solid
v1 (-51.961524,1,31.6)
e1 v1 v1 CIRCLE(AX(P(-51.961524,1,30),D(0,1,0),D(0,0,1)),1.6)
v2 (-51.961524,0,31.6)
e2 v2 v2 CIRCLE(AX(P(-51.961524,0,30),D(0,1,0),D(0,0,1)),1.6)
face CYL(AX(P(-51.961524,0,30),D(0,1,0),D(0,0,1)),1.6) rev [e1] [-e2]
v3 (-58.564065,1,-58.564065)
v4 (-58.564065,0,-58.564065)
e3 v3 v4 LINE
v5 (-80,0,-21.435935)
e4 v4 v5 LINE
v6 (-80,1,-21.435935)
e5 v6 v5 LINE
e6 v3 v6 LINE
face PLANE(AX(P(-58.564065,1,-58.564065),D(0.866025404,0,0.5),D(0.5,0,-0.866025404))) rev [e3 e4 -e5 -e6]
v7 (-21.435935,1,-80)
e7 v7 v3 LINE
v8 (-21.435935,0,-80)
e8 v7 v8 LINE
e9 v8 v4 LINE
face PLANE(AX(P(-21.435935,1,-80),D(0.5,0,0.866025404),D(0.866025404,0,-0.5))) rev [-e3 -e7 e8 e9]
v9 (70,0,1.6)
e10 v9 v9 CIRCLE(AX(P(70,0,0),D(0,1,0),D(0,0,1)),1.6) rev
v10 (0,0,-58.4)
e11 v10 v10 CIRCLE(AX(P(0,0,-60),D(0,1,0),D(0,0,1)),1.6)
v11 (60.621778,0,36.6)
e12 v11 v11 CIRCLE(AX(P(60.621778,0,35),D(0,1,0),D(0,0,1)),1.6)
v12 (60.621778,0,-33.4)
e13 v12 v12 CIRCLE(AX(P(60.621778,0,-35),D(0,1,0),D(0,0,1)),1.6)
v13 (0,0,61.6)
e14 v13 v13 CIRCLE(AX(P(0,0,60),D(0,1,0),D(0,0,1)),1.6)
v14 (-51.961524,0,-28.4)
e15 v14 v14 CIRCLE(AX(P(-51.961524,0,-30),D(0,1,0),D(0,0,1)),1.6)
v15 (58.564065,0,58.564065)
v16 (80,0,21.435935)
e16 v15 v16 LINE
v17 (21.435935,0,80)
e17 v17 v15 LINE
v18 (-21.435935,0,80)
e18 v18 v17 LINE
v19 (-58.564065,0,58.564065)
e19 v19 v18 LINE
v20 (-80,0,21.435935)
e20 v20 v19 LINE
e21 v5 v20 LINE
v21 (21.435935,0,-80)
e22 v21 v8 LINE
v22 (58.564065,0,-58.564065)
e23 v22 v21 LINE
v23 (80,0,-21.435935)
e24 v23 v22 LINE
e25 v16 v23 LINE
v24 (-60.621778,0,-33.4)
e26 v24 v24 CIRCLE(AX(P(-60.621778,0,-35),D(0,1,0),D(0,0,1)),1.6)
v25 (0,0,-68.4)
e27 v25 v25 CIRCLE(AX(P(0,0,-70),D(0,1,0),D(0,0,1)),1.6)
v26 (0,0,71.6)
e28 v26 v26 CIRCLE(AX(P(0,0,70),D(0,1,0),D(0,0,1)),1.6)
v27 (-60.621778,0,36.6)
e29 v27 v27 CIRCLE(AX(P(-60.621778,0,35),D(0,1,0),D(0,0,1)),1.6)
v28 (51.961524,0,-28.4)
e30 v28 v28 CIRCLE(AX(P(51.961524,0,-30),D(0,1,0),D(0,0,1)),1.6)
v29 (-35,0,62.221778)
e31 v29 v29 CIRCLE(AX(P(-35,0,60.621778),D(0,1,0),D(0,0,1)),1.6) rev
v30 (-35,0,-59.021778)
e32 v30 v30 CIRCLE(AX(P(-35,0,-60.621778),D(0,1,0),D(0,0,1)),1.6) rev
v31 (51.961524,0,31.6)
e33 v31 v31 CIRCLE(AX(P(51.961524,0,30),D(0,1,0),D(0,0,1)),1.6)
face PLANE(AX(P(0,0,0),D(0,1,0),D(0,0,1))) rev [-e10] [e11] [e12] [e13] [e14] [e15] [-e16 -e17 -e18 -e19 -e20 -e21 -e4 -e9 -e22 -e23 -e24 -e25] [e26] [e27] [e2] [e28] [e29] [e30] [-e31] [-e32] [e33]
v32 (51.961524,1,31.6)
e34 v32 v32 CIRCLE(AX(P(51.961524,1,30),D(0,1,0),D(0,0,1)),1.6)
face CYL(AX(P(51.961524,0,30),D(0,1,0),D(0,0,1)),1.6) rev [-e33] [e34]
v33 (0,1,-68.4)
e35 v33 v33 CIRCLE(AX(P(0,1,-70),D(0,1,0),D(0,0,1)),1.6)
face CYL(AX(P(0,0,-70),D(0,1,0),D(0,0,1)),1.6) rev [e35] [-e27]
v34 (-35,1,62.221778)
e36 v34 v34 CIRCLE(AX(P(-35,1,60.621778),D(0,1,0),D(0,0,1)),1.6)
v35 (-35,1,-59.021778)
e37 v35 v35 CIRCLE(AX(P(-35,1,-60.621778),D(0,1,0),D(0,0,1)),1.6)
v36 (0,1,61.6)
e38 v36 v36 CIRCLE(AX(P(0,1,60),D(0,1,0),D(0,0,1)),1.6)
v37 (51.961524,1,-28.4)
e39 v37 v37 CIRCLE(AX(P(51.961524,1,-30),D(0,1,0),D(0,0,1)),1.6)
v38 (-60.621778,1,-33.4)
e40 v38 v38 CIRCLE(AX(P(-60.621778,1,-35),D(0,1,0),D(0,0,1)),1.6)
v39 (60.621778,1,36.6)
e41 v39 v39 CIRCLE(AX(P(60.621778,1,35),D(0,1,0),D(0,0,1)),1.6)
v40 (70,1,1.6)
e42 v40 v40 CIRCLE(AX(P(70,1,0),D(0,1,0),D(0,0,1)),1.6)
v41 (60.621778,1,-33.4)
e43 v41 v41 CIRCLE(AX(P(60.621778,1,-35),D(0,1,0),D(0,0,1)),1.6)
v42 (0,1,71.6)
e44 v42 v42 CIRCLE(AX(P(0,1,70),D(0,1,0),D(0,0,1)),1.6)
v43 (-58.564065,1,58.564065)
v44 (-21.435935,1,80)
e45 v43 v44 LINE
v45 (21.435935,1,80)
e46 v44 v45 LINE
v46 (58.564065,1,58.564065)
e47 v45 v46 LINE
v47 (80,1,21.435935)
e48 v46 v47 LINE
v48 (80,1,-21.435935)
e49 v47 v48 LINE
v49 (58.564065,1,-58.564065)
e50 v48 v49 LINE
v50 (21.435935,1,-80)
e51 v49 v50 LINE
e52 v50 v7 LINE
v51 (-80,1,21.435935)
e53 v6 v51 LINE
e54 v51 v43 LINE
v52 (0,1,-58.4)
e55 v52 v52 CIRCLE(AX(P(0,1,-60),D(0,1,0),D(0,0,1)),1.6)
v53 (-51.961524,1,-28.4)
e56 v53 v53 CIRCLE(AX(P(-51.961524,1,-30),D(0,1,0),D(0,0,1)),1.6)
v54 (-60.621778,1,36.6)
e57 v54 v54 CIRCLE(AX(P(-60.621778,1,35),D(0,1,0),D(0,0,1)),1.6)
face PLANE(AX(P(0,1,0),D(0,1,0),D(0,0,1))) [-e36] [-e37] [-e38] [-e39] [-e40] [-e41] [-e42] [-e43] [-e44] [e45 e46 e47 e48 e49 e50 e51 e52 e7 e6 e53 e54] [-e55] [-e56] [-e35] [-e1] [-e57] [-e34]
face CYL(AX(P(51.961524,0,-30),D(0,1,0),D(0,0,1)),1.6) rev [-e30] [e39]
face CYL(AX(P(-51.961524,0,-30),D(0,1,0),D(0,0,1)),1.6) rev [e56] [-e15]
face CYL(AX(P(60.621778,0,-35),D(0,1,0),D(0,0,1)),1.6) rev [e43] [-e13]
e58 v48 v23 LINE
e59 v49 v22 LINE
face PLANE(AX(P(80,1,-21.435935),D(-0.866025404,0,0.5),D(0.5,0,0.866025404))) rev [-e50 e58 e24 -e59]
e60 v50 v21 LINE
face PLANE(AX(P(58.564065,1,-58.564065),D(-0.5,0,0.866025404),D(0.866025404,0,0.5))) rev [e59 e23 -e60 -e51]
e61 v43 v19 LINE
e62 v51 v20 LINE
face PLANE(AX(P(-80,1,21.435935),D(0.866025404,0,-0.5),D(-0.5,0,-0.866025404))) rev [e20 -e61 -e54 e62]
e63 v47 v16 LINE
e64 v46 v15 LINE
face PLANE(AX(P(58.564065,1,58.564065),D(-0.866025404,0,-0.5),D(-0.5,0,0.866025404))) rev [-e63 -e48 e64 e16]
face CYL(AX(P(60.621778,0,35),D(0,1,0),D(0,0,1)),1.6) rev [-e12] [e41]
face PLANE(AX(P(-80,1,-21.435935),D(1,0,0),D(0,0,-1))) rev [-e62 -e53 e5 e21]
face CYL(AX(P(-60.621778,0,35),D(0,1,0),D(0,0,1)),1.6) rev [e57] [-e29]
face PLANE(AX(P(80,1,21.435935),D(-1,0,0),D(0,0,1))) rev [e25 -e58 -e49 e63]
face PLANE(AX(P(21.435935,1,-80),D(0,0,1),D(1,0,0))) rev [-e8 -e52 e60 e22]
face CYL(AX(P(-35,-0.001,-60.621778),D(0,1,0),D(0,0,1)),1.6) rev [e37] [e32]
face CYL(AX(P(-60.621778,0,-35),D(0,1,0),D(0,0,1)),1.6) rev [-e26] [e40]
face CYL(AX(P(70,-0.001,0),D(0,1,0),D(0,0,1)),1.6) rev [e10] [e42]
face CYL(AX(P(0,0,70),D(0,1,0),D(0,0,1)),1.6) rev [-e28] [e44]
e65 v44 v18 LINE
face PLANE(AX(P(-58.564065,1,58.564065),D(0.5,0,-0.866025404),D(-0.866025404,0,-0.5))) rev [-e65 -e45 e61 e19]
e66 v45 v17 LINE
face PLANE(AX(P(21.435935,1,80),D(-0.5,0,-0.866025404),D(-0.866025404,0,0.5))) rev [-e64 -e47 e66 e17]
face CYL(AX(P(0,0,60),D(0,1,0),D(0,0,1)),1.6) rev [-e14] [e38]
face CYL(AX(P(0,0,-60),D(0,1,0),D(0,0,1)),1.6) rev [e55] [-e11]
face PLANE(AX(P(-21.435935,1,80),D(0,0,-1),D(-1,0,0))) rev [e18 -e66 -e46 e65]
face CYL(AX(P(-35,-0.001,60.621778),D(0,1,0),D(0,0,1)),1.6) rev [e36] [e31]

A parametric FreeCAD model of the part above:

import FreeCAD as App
import Part
import Sketcher
from FreeCAD import Vector
Q = App.Units.Quantity


def add_polygon(sketch, points):
    """Adds a closed chain of lines whose ends are joined by coincident constraints."""
    first, n = sketch.GeometryCount, len(points)
    for a, b in zip(points, points[1:] + points[:1]):
        sketch.addGeometry(Part.LineSegment(App.Vector(*a, 0), App.Vector(*b, 0)), False)
    for i in range(n):
        sketch.addConstraint(Sketcher.Constraint("Coincident", first + i, 2, first + (i + 1) % n, 1))

doc = App.newDocument("Part")
body = doc.addObject("PartDesign::Body", "Body")

# Sketch on XZ plane
sketch1 = doc.addObject("Sketcher::SketchObject", "Sketch")
body.addObject(sketch1)
sketch1.AttachmentSupport = (doc.XZ_Plane, [""])
sketch1.MapMode = "FlatFace"
add_polygon(sketch1, [(-80, 21), (-59, 59), (-21, 80), (21, 80), (59, 59), (80, 21), (80, -21), (59, -59), (21, -80), (-21, -80), (-59, -59), (-80, -21)])  # lines 0-11
sketch1.addConstraint([
    Sketcher.Constraint("Horizontal", 2),
    Sketcher.Constraint("Vertical", 5),
    Sketcher.Constraint("Horizontal", 8),
    Sketcher.Constraint("Vertical", 11),
    Sketcher.Constraint("Symmetric", 0, 2, 6, 2, -1, 1),
    Sketcher.Constraint("Symmetric", 1, 2, 7, 2, -1, 1),
    Sketcher.Constraint("Symmetric", 3, 2, 9, 2, -1, 1),
    Sketcher.Constraint("Symmetric", 4, 2, 10, 2, -1, 1),
    Sketcher.Constraint("Symmetric", 0, 2, 3, 2, -2),
    Sketcher.Constraint("Perpendicular", 0, 3),
    Sketcher.Constraint("Perpendicular", 1, 4),
    Sketcher.Constraint("Perpendicular", 3, 6),
    Sketcher.Constraint("Perpendicular", 6, 9),
    Sketcher.Constraint("Horizontal", 5, 2, 10, 2),
    Sketcher.Constraint("Equal", 8, 5),
    Sketcher.Constraint("Equal", 0, 1),
    Sketcher.Constraint("Angle", 0, Q("60 deg")),
    Sketcher.Constraint("DistanceY", -1, 1, 1, 2, Q("80 mm")),
    Sketcher.Constraint("DistanceX", 0, 2, 2, 2, Q("80 mm")),
])
pad1 = doc.addObject("PartDesign::Pad", "Pad")
body.addObject(pad1)
pad1.Profile = sketch1
pad1.Length = 1
pad1.Reversed = True

# Sketch on XZ plane
sketch2 = doc.addObject("Sketcher::SketchObject", "Sketch001")
body.addObject(sketch2)
sketch2.AttachmentSupport = (doc.XZ_Plane, [""])
sketch2.MapMode = "FlatFace"
sketch2.AttachmentOffset = App.Placement(Vector(0, 0, -1), App.Rotation())
sketch2.addGeometry(Part.Circle(Vector(-60.6, -35, 0), Vector(0, 0, 1), 1.6), False)
sketch2.addConstraint([
    Sketcher.Constraint("Diameter", 0, Q("3.2 mm")),
    Sketcher.Constraint("DistanceY", 0, 3, -1, 1, Q("35 mm")),
    Sketcher.Constraint("DistanceX", 0, 3, -1, 1, Q("60.621778 mm")),
])
pocket1 = doc.addObject("PartDesign::Pocket", "Pocket")
body.addObject(pocket1)
pocket1.Profile = sketch2
pocket1.Length = 1
pocket1.Reversed = True

# Sketch on XZ plane
sketch3 = doc.addObject("Sketcher::SketchObject", "Sketch002")
body.addObject(sketch3)
sketch3.AttachmentSupport = (doc.XZ_Plane, [""])
sketch3.MapMode = "FlatFace"
sketch3.AttachmentOffset = App.Placement(Vector(0, 0, -1), App.Rotation())
sketch3.addGeometry(Part.Circle(Vector(-52, -30, 0), Vector(0, 0, 1), 1.6), False)
sketch3.addConstraint([
    Sketcher.Constraint("Diameter", 0, Q("3.2 mm")),
    Sketcher.Constraint("DistanceY", 0, 3, -1, 1, Q("30 mm")),
    Sketcher.Constraint("DistanceX", 0, 3, -1, 1, Q("51.961524 mm")),
])
pocket2 = doc.addObject("PartDesign::Pocket", "Pocket001")
body.addObject(pocket2)
pocket2.Profile = sketch3
pocket2.Length = 1
pocket2.Reversed = True

# Sketch on XZ plane
sketch4 = doc.addObject("Sketcher::SketchObject", "Sketch003")
body.addObject(sketch4)
sketch4.AttachmentSupport = (doc.XZ_Plane, [""])
sketch4.MapMode = "FlatFace"
sketch4.AttachmentOffset = App.Placement(Vector(0, 0, -1), App.Rotation())
sketch4.addGeometry(Part.Circle(Vector(60.6, 35, 0), Vector(0, 0, 1), 1.6), False)
sketch4.addConstraint([
    Sketcher.Constraint("Diameter", 0, Q("3.2 mm")),
    Sketcher.Constraint("DistanceY", -1, 1, 0, 3, Q("35 mm")),
    Sketcher.Constraint("DistanceX", -1, 1, 0, 3, Q("60.621778 mm")),
])
pocket3 = doc.addObject("PartDesign::Pocket", "Pocket002")
body.addObject(pocket3)
pocket3.Profile = sketch4
pocket3.Length = 1
pocket3.Reversed = True

# Sketch on XZ plane
sketch5 = doc.addObject("Sketcher::SketchObject", "Sketch004")
body.addObject(sketch5)
sketch5.AttachmentSupport = (doc.XZ_Plane, [""])
sketch5.MapMode = "FlatFace"
sketch5.AttachmentOffset = App.Placement(Vector(0, 0, -1), App.Rotation())
sketch5.addGeometry(Part.Circle(Vector(52, 30, 0), Vector(0, 0, 1), 1.6), False)
sketch5.addConstraint([
    Sketcher.Constraint("Diameter", 0, Q("3.2 mm")),
    Sketcher.Constraint("DistanceY", -1, 1, 0, 3, Q("30 mm")),
    Sketcher.Constraint("DistanceX", -1, 1, 0, 3, Q("51.961524 mm")),
])
pocket4 = doc.addObject("PartDesign::Pocket", "Pocket003")
body.addObject(pocket4)
pocket4.Profile = sketch5
pocket4.Length = 1
pocket4.Reversed = True

# Sketch on XZ plane
sketch6 = doc.addObject("Sketcher::SketchObject", "Sketch005")
body.addObject(sketch6)
sketch6.AttachmentSupport = (doc.XZ_Plane, [""])
sketch6.MapMode = "FlatFace"
sketch6.AttachmentOffset = App.Placement(Vector(0, 0, -1), App.Rotation())
sketch6.addGeometry(Part.Circle(Vector(60.6, -35, 0), Vector(0, 0, 1), 1.6), False)
sketch6.addConstraint([
    Sketcher.Constraint("Diameter", 0, Q("3.2 mm")),
    Sketcher.Constraint("DistanceY", 0, 3, -1, 1, Q("35 mm")),
    Sketcher.Constraint("DistanceX", -1, 1, 0, 3, Q("60.621778 mm")),
])
pocket5 = doc.addObject("PartDesign::Pocket", "Pocket004")
body.addObject(pocket5)
pocket5.Profile = sketch6
pocket5.Length = 1
pocket5.Reversed = True

# Sketch on XZ plane
sketch7 = doc.addObject("Sketcher::SketchObject", "Sketch006")
body.addObject(sketch7)
sketch7.AttachmentSupport = (doc.XZ_Plane, [""])
sketch7.MapMode = "FlatFace"
sketch7.AttachmentOffset = App.Placement(Vector(0, 0, -1), App.Rotation())
sketch7.addGeometry(Part.Circle(Vector(52, -30, 0), Vector(0, 0, 1), 1.6), False)
sketch7.addConstraint([
    Sketcher.Constraint("Diameter", 0, Q("3.2 mm")),
    Sketcher.Constraint("DistanceY", 0, 3, -1, 1, Q("30 mm")),
    Sketcher.Constraint("DistanceX", -1, 1, 0, 3, Q("51.961524 mm")),
])
pocket6 = doc.addObject("PartDesign::Pocket", "Pocket005")
body.addObject(pocket6)
pocket6.Profile = sketch7
pocket6.Length = 1
pocket6.Reversed = True

# Sketch on XZ plane
sketch8 = doc.addObject("Sketcher::SketchObject", "Sketch007")
body.addObject(sketch8)
sketch8.AttachmentSupport = (doc.XZ_Plane, [""])
sketch8.MapMode = "FlatFace"
sketch8.AttachmentOffset = App.Placement(Vector(0, 0, -1), App.Rotation())
sketch8.addGeometry(Part.Circle(Vector(-60.6, 35, 0), Vector(0, 0, 1), 1.6), False)
sketch8.addConstraint([
    Sketcher.Constraint("Diameter", 0, Q("3.2 mm")),
    Sketcher.Constraint("DistanceY", -1, 1, 0, 3, Q("35 mm")),
    Sketcher.Constraint("DistanceX", 0, 3, -1, 1, Q("60.621778 mm")),
])
pocket7 = doc.addObject("PartDesign::Pocket", "Pocket006")
body.addObject(pocket7)
pocket7.Profile = sketch8
pocket7.Length = 1
pocket7.Reversed = True

# Sketch on XZ plane
sketch9 = doc.addObject("Sketcher::SketchObject", "Sketch008")
body.addObject(sketch9)
sketch9.AttachmentSupport = (doc.XZ_Plane, [""])
sketch9.MapMode = "FlatFace"
sketch9.AttachmentOffset = App.Placement(Vector(0, 0, -1), App.Rotation())
sketch9.addGeometry(Part.Circle(Vector(-52, 30, 0), Vector(0, 0, 1), 1.6), False)
sketch9.addConstraint([
    Sketcher.Constraint("Diameter", 0, Q("3.2 mm")),
    Sketcher.Constraint("DistanceY", -1, 1, 0, 3, Q("30 mm")),
    Sketcher.Constraint("DistanceX", 0, 3, -1, 1, Q("51.961524 mm")),
])
pocket8 = doc.addObject("PartDesign::Pocket", "Pocket007")
body.addObject(pocket8)
pocket8.Profile = sketch9
pocket8.Length = 1
pocket8.Reversed = True

# Sketch on XZ plane
sketch10 = doc.addObject("Sketcher::SketchObject", "Sketch009")
body.addObject(sketch10)
sketch10.AttachmentSupport = (doc.XZ_Plane, [""])
sketch10.MapMode = "FlatFace"
sketch10.AttachmentOffset = App.Placement(Vector(0, 0, -1), App.Rotation())
sketch10.addGeometry(Part.Circle(Vector(0, -70, 0), Vector(0, 0, 1), 1.6), False)
sketch10.addConstraint([
    Sketcher.Constraint("PointOnObject", 0, 3, -2),
    Sketcher.Constraint("Diameter", 0, Q("3.2 mm")),
    Sketcher.Constraint("DistanceY", 0, 3, -1, 1, Q("70 mm")),
])
pocket9 = doc.addObject("PartDesign::Pocket", "Pocket008")
body.addObject(pocket9)
pocket9.Profile = sketch10
pocket9.Length = 1
pocket9.Reversed = True

# Sketch on XZ plane
sketch11 = doc.addObject("Sketcher::SketchObject", "Sketch010")
body.addObject(sketch11)
sketch11.AttachmentSupport = (doc.XZ_Plane, [""])
sketch11.MapMode = "FlatFace"
sketch11.AttachmentOffset = App.Placement(Vector(0, 0, -1), App.Rotation())
sketch11.addGeometry(Part.Circle(Vector(0, -60, 0), Vector(0, 0, 1), 1.6), False)
sketch11.addConstraint([
    Sketcher.Constraint("PointOnObject", 0, 3, -2),
    Sketcher.Constraint("Diameter", 0, Q("3.2 mm")),
    Sketcher.Constraint("DistanceY", 0, 3, -1, 1, Q("60 mm")),
])
pocket10 = doc.addObject("PartDesign::Pocket", "Pocket009")
body.addObject(pocket10)
pocket10.Profile = sketch11
pocket10.Length = 1
pocket10.Reversed = True

# Sketch on XZ plane
sketch12 = doc.addObject("Sketcher::SketchObject", "Sketch011")
body.addObject(sketch12)
sketch12.AttachmentSupport = (doc.XZ_Plane, [""])
sketch12.MapMode = "FlatFace"
sketch12.AttachmentOffset = App.Placement(Vector(0, 0, -1), App.Rotation())
sketch12.addGeometry(Part.Circle(Vector(0, 70, 0), Vector(0, 0, 1), 1.6), False)
sketch12.addConstraint([
    Sketcher.Constraint("PointOnObject", 0, 3, -2),
    Sketcher.Constraint("Diameter", 0, Q("3.2 mm")),
    Sketcher.Constraint("DistanceY", -1, 1, 0, 3, Q("70 mm")),
])
pocket11 = doc.addObject("PartDesign::Pocket", "Pocket010")
body.addObject(pocket11)
pocket11.Profile = sketch12
pocket11.Length = 1
pocket11.Reversed = True

# Sketch on XZ plane
sketch13 = doc.addObject("Sketcher::SketchObject", "Sketch012")
body.addObject(sketch13)
sketch13.AttachmentSupport = (doc.XZ_Plane, [""])
sketch13.MapMode = "FlatFace"
sketch13.AttachmentOffset = App.Placement(Vector(0, 0, -1), App.Rotation())
sketch13.addGeometry(Part.Circle(Vector(0, 60, 0), Vector(0, 0, 1), 1.6), False)
sketch13.addConstraint([
    Sketcher.Constraint("PointOnObject", 0, 3, -2),
    Sketcher.Constraint("Diameter", 0, Q("3.2 mm")),
    Sketcher.Constraint("DistanceY", -1, 1, 0, 3, Q("60 mm")),
])
pocket12 = doc.addObject("PartDesign::Pocket", "Pocket011")
body.addObject(pocket12)
pocket12.Profile = sketch13
pocket12.Length = 1
pocket12.Reversed = True

# Sketch on XZ plane
sketch14 = doc.addObject("Sketcher::SketchObject", "Sketch013")
body.addObject(sketch14)
sketch14.AttachmentSupport = (doc.XZ_Plane, [""])
sketch14.MapMode = "FlatFace"
sketch14.AttachmentOffset = App.Placement(Vector(0, 0, -1), App.Rotation())
sketch14.addGeometry(Part.Circle(Vector(-35, -60.6, 0), Vector(0, 0, 1), 1.6), False)
sketch14.addConstraint([
    Sketcher.Constraint("Diameter", 0, Q("3.2 mm")),
    Sketcher.Constraint("DistanceX", 0, 3, -1, 1, Q("35 mm")),
    Sketcher.Constraint("DistanceY", 0, 3, -1, 1, Q("60.621778 mm")),
])
pocket13 = doc.addObject("PartDesign::Pocket", "Pocket012")
body.addObject(pocket13)
pocket13.Profile = sketch14
pocket13.Type = "UpToFirst"
pocket13.Reversed = True

# Sketch on XZ plane
sketch15 = doc.addObject("Sketcher::SketchObject", "Sketch014")
body.addObject(sketch15)
sketch15.AttachmentSupport = (doc.XZ_Plane, [""])
sketch15.MapMode = "FlatFace"
sketch15.AttachmentOffset = App.Placement(Vector(0, 0, -1), App.Rotation())
sketch15.addGeometry(Part.Circle(Vector(-35, 60.6, 0), Vector(0, 0, 1), 1.6), False)
sketch15.addConstraint([
    Sketcher.Constraint("Diameter", 0, Q("3.2 mm")),
    Sketcher.Constraint("DistanceX", 0, 3, -1, 1, Q("35 mm")),
    Sketcher.Constraint("DistanceY", -1, 1, 0, 3, Q("60.621778 mm")),
])
pocket14 = doc.addObject("PartDesign::Pocket", "Pocket013")
body.addObject(pocket14)
pocket14.Profile = sketch15
pocket14.Type = "UpToFirst"
pocket14.Reversed = True

# Sketch on XZ plane
sketch16 = doc.addObject("Sketcher::SketchObject", "Sketch015")
body.addObject(sketch16)
sketch16.AttachmentSupport = (doc.XZ_Plane, [""])
sketch16.MapMode = "FlatFace"
sketch16.AttachmentOffset = App.Placement(Vector(0, 0, -1), App.Rotation())
sketch16.addGeometry(Part.Circle(Vector(70, 0, 0), Vector(0, 0, 1), 1.6), False)
sketch16.addConstraint([
    Sketcher.Constraint("PointOnObject", 0, 3, -1),
    Sketcher.Constraint("Diameter", 0, Q("3.2 mm")),
    Sketcher.Constraint("DistanceX", -1, 1, 0, 3, Q("70 mm")),
])
pocket15 = doc.addObject("PartDesign::Pocket", "Pocket014")
body.addObject(pocket15)
pocket15.Profile = sketch16
pocket15.Type = "UpToFirst"
pocket15.Reversed = True

doc.recompute()
